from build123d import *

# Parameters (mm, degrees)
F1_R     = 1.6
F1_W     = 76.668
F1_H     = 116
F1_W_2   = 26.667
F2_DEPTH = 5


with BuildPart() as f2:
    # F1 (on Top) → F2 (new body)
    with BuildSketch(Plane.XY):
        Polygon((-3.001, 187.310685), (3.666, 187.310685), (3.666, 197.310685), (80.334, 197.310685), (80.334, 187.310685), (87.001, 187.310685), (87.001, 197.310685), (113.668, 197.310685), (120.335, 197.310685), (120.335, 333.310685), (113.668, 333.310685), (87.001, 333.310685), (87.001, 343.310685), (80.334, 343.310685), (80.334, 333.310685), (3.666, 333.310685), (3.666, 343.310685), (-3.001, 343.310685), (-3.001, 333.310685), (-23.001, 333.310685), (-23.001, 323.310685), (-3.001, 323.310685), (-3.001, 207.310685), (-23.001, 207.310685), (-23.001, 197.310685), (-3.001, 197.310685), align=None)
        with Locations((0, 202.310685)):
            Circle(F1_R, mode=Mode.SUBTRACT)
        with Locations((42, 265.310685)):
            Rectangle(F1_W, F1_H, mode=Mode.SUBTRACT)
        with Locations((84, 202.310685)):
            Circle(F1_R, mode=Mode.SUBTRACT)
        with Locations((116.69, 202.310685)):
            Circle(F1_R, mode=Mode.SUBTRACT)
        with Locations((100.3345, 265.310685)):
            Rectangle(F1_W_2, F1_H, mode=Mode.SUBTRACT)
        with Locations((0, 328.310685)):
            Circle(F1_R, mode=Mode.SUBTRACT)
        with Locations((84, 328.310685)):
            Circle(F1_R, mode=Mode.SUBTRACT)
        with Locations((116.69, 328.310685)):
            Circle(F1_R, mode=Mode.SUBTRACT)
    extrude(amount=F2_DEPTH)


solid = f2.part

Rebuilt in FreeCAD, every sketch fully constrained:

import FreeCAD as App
import Part
import Sketcher
from FreeCAD import Vector
Q = App.Units.Quantity


def add_polygon(sketch, points):
    """Adds a closed chain of lines whose ends are joined by coincident constraints."""
    first, n = sketch.GeometryCount, len(points)
    for a, b in zip(points, points[1:] + points[:1]):
        sketch.addGeometry(Part.LineSegment(App.Vector(*a, 0), App.Vector(*b, 0)), False)
    for i in range(n):
        sketch.addConstraint(Sketcher.Constraint("Coincident", first + i, 2, first + (i + 1) % n, 1))

doc = App.newDocument("Part")
body = doc.addObject("PartDesign::Body", "Body")

sketch1 = body.newObject("Sketcher::SketchObject", "Sketch")
sketch1.AttachmentSupport = (doc.getObject("XY_Plane"), [""])
sketch1.MapMode = "FlatFace"
add_polygon(sketch1, [(-3, 187.3), (3.7, 187.3), (3.7, 197.3), (80.3, 197.3), (80.3, 187.3), (87, 187.3), (87, 197.3), (120.3, 197.3), (120.3, 333.3), (87, 333.3), (87, 343.3), (80.3, 343.3), (80.3, 333.3), (3.7, 333.3), (3.7, 343.3), (-3, 343.3), (-3, 333.3), (-23, 333.3), (-23, 323.3), (-3, 323.3), (-3, 207.3), (-23, 207.3), (-23, 197.3), (-3, 197.3)])
sketch1.addGeometry(Part.Circle(Vector(0, 202.3, 0), Vector(0, 0, 1), 1.6), False)
add_polygon(sketch1, [(80.3, 207.3), (3.7, 207.3), (3.7, 323.3), (80.3, 323.3)])
sketch1.addGeometry(Part.Circle(Vector(84, 202.3, 0), Vector(0, 0, 1), 1.6), False)
sketch1.addGeometry(Part.Circle(Vector(116.7, 202.3, 0), Vector(0, 0, 1), 1.6), False)
add_polygon(sketch1, [(113.7, 207.3), (87, 207.3), (87, 323.3), (113.7, 323.3)])
sketch1.addGeometry(Part.Circle(Vector(0, 328.3, 0), Vector(0, 0, 1), 1.6), False)
sketch1.addGeometry(Part.Circle(Vector(84, 328.3, 0), Vector(0, 0, 1), 1.6), False)
sketch1.addGeometry(Part.Circle(Vector(116.7, 328.3, 0), Vector(0, 0, 1), 1.6), False)
sketch1.addConstraint([
    Sketcher.Constraint("Horizontal", 0),
    Sketcher.Constraint("Vertical", 1),
    Sketcher.Constraint("Horizontal", 2),
    Sketcher.Constraint("Vertical", 3),
    Sketcher.Constraint("Horizontal", 4),
    Sketcher.Constraint("Vertical", 5),
    Sketcher.Constraint("Horizontal", 6),
    Sketcher.Constraint("Vertical", 7),
    Sketcher.Constraint("Horizontal", 8),
    Sketcher.Constraint("Vertical", 9),
    Sketcher.Constraint("Horizontal", 10),
    Sketcher.Constraint("Vertical", 11),
    Sketcher.Constraint("Horizontal", 12),
    Sketcher.Constraint("Vertical", 13),
    Sketcher.Constraint("Horizontal", 14),
    Sketcher.Constraint("Vertical", 15),
    Sketcher.Constraint("Horizontal", 16),
    Sketcher.Constraint("Vertical", 17),
    Sketcher.Constraint("Horizontal", 18),
    Sketcher.Constraint("Vertical", 19),
    Sketcher.Constraint("Horizontal", 20),
    Sketcher.Constraint("Vertical", 21),
    Sketcher.Constraint("Horizontal", 22),
    Sketcher.Constraint("Vertical", 23),
    Sketcher.Constraint("Horizontal", 25),
    Sketcher.Constraint("Vertical", 26),
    Sketcher.Constraint("Horizontal", 27),
    Sketcher.Constraint("Vertical", 28),
    Sketcher.Constraint("Horizontal", 31),
    Sketcher.Constraint("Vertical", 32),
    Sketcher.Constraint("Horizontal", 33),
    Sketcher.Constraint("Vertical", 34),
    Sketcher.Constraint("Equal", 24, 29),
    Sketcher.Constraint("Equal", 29, 30),
    Sketcher.Constraint("Equal", 30, 35),
    Sketcher.Constraint("Equal", 35, 36),
    Sketcher.Constraint("Equal", 36, 37),
    Sketcher.Constraint("PointOnObject", 24, 3, -2),
    Sketcher.Constraint("PointOnObject", 35, 3, -2),
    Sketcher.Constraint("Horizontal", 24, 3, 29, 3),
    Sketcher.Constraint("Horizontal", 29, 3, 30, 3),
    Sketcher.Constraint("Horizontal", 35, 3, 36, 3),
    Sketcher.Constraint("Horizontal", 36, 3, 37, 3),
    Sketcher.Constraint("Horizontal", 0, 2, 3, 2),
    Sketcher.Constraint("Horizontal", 2, 2, 5, 2),
    Sketcher.Constraint("Horizontal", 8, 2, 11, 2),
    Sketcher.Constraint("Horizontal", 10, 2, 13, 2),
    Sketcher.Constraint("Horizontal", 12, 2, 15, 2),
    Sketcher.Constraint("Horizontal", 6, 2, 21, 2),
    Sketcher.Constraint("Horizontal", 20, 2, 25, 2),
    Sketcher.Constraint("Horizontal", 18, 2, 26, 2),
    Sketcher.Constraint("Horizontal", 28, 2, 31, 2),
    Sketcher.Constraint("Horizontal", 27, 2, 32, 2),
    Sketcher.Constraint("Vertical", 29, 3, 36, 3),
    Sketcher.Constraint("Vertical", 30, 3, 37, 3),
    Sketcher.Constraint("Vertical", 5, 2, 8, 2),
    Sketcher.Constraint("Vertical", 3, 2, 10, 2),
    Sketcher.Constraint("Vertical", 1, 2, 12, 2),
    Sketcher.Constraint("Vertical", 15, 2, 18, 2),
    Sketcher.Constraint("Vertical", 17, 2, 20, 2),
    Sketcher.Constraint("Vertical", 19, 2, 22, 2),
    Sketcher.Constraint("Vertical", 13, 2, 25, 2),
    Sketcher.Constraint("Vertical", 11, 2, 27, 2),
    Sketcher.Constraint("Vertical", 9, 2, 31, 2),
    Sketcher.Constraint("Equal", 0, 4),
    Sketcher.Constraint("Equal", 5, 9),
    Sketcher.Constraint("Equal", 15, 17),
    Sketcher.Constraint("Equal", 17, 21),
    Sketcher.Constraint("Diameter", 24, Q("3.2 mm")),
    Sketcher.Constraint("DistanceX", 16, 2, 16, 1, Q("20 mm")),
    Sketcher.Constraint("DistanceY", 1, 1, 1, 2, Q("10 mm")),
    Sketcher.Constraint("DistanceY", 7, 1, 7, 2, Q("136 mm")),
    Sketcher.Constraint("DistanceX", -1, 1, 29, 3, Q("84 mm")),
    Sketcher.Constraint("DistanceY", 24, 3, 35, 3, Q("126 mm")),
    Sketcher.Constraint("DistanceY", 0, 2, 24, 3, Q("15 mm")),
    Sketcher.Constraint("DistanceX", 0, 1, 0, 2, Q("6.667 mm")),
    Sketcher.Constraint("DistanceX", 2, 1, 2, 2, Q("76.668 mm")),
    Sketcher.Constraint("DistanceX", 6, 1, 6, 2, Q("33.334 mm")),
    Sketcher.Constraint("DistanceX", 31, 2, 31, 1, Q("26.667 mm")),
    Sketcher.Constraint("DistanceX", -1, 1, 30, 3, Q("116.69 mm")),
    Sketcher.Constraint("DistanceX", -1, 1, 0, 2, Q("3.666 mm")),
    Sketcher.Constraint("DistanceY", -1, 1, 24, 3, Q("202.310685 mm")),
])
pad1 = body.newObject("PartDesign::Pad", "Pad")
pad1.Profile = sketch1
pad1.Length = 5

doc.recompute()
